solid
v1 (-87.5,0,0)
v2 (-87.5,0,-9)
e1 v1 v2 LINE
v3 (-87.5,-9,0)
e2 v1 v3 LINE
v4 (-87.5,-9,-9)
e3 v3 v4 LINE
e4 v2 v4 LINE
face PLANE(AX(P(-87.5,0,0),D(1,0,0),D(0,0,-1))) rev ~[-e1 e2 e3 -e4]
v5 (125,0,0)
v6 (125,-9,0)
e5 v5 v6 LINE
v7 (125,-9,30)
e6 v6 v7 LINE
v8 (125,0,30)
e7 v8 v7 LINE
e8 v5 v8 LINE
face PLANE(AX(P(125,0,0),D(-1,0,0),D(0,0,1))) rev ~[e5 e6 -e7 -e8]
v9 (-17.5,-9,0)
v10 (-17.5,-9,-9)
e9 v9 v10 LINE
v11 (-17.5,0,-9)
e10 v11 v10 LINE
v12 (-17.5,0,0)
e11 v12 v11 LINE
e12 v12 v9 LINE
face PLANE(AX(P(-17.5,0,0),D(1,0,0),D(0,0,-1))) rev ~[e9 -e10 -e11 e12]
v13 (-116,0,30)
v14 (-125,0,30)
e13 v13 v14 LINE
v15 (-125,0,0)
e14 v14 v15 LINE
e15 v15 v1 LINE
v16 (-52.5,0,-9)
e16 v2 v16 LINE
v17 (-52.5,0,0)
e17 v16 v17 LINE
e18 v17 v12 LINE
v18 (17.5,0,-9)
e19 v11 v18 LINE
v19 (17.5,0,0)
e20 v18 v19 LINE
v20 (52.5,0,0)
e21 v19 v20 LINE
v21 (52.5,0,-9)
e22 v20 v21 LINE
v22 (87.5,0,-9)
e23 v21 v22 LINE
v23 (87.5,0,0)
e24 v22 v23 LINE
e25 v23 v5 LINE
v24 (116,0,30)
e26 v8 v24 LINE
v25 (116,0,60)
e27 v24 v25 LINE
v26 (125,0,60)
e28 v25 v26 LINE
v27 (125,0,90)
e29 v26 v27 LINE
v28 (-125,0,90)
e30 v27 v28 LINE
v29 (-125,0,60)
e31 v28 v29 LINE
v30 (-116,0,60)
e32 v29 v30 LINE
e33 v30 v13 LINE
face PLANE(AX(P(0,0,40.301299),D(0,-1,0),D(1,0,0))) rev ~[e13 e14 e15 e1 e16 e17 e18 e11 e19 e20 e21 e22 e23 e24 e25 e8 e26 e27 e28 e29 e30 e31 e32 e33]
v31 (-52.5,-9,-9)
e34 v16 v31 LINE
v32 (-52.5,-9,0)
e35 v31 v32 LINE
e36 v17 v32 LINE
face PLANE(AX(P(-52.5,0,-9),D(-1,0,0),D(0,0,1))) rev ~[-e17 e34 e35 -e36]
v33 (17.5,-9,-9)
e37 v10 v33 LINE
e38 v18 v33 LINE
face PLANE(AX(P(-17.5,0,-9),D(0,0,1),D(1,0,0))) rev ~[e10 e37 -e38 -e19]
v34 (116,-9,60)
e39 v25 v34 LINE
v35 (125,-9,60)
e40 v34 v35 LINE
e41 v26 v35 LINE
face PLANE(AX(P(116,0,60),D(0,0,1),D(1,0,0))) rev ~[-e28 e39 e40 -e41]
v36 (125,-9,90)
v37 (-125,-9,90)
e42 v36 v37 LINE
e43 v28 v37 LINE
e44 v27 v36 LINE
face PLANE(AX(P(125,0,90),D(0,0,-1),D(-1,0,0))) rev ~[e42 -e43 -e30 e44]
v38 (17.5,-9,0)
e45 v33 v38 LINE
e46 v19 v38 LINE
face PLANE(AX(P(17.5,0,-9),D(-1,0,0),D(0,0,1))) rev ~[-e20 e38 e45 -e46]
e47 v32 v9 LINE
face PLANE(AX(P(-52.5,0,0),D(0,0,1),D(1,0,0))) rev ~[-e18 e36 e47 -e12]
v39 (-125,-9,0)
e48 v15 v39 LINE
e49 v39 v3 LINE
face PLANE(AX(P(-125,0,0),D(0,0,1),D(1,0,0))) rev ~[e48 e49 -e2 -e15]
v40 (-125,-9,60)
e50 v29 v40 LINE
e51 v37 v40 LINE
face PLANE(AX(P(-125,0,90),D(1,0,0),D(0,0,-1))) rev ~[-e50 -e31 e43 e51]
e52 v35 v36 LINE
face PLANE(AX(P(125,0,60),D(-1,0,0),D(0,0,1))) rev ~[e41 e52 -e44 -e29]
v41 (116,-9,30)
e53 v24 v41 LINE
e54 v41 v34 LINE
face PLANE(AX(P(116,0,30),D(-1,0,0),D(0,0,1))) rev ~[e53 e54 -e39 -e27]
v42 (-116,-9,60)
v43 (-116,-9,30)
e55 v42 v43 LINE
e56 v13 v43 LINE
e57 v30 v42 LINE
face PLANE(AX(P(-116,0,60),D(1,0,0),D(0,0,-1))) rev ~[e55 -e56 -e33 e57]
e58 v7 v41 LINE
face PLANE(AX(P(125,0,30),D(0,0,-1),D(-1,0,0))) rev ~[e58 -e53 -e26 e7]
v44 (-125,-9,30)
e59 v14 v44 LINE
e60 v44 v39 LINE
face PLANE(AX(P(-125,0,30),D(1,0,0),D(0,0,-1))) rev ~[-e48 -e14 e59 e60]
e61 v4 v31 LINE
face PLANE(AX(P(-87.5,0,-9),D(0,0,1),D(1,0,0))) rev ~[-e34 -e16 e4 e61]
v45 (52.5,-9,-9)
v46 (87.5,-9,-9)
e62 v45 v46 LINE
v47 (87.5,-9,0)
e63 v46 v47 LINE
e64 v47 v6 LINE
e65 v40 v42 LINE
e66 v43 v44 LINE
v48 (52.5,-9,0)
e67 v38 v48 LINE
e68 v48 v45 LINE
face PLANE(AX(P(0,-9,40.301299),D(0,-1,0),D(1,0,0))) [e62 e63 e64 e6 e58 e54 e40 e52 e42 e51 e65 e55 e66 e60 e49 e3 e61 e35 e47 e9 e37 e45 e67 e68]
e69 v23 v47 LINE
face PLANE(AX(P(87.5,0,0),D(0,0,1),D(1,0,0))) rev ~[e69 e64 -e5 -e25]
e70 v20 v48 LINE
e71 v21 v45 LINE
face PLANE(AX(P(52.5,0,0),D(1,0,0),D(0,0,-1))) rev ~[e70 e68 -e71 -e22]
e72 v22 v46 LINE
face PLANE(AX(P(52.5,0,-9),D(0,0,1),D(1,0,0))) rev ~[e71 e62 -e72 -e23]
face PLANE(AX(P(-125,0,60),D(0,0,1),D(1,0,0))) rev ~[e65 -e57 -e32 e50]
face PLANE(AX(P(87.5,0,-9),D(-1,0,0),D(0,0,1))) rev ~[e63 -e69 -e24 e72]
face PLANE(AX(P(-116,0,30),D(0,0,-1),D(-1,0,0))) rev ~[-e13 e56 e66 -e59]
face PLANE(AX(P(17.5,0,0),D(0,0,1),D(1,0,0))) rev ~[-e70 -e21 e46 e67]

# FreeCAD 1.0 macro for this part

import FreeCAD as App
import Part
import Sketcher
from FreeCAD import Vector
Q = App.Units.Quantity

doc = App.newDocument("Part")
body = doc.addObject("PartDesign::Body", "Body")

# Sketch on XZ plane
sketch1 = body.newObject("Sketcher::SketchObject", "Sketch")
sketch1.AttachmentSupport = (doc.getObject("XZ_Plane"), [""])
sketch1.MapMode = "FlatFace"
sketch1.addGeometry(Part.LineSegment(Vector(-125, 90, 0), Vector(-125, 60, 0)), False)
sketch1.addGeometry(Part.LineSegment(Vector(-125, 60, 0), Vector(-116, 60, 0)), False)
sketch1.addGeometry(Part.LineSegment(Vector(-116, 60, 0), Vector(-116, 30, 0)), False)
sketch1.addGeometry(Part.LineSegment(Vector(-116, 30, 0), Vector(-125, 30, 0)), False)
sketch1.addGeometry(Part.LineSegment(Vector(-125, 30, 0), Vector(-125, 0, 0)), False)
sketch1.addGeometry(Part.LineSegment(Vector(-125, 0, 0), Vector(-87.5, 0, 0)), False)
sketch1.addGeometry(Part.LineSegment(Vector(-87.5, 0, 0), Vector(-87.5, -9, 0)), False)
sketch1.addGeometry(Part.LineSegment(Vector(-87.5, -9, 0), Vector(-52.5, -9, 0)), False)
sketch1.addGeometry(Part.LineSegment(Vector(-52.5, -9, 0), Vector(-52.5, 0, 0)), False)
sketch1.addGeometry(Part.LineSegment(Vector(-52.5, 0, 0), Vector(-17.5, 0, 0)), False)
sketch1.addGeometry(Part.LineSegment(Vector(-17.5, 0, 0), Vector(-17.5, -9, 0)), False)
sketch1.addGeometry(Part.LineSegment(Vector(-17.5, -9, 0), Vector(17.5, -9, 0)), False)
sketch1.addGeometry(Part.LineSegment(Vector(17.5, -9, 0), Vector(17.5, 0, 0)), False)
sketch1.addGeometry(Part.LineSegment(Vector(17.5, 0, 0), Vector(52.5, 0, 0)), False)
sketch1.addGeometry(Part.LineSegment(Vector(52.5, 0, 0), Vector(52.5, -9, 0)), False)
sketch1.addGeometry(Part.LineSegment(Vector(52.5, -9, 0), Vector(87.5, -9, 0)), False)
sketch1.addGeometry(Part.LineSegment(Vector(87.5, -9, 0), Vector(87.5, 0, 0)), False)
sketch1.addGeometry(Part.LineSegment(Vector(87.5, 0, 0), Vector(125, 0, 0)), False)
sketch1.addGeometry(Part.LineSegment(Vector(125, 0, 0), Vector(125, 30, 0)), False)
sketch1.addGeometry(Part.LineSegment(Vector(125, 30, 0), Vector(116, 30, 0)), False)
sketch1.addGeometry(Part.LineSegment(Vector(116, 30, 0), Vector(116, 60, 0)), False)
sketch1.addGeometry(Part.LineSegment(Vector(116, 60, 0), Vector(125, 60, 0)), False)
sketch1.addGeometry(Part.LineSegment(Vector(125, 60, 0), Vector(125, 90, 0)), False)
sketch1.addGeometry(Part.LineSegment(Vector(125, 90, 0), Vector(-125, 90, 0)), False)
sketch1.addConstraint(Sketcher.Constraint("Coincident", 0, 2, 1, 1))
sketch1.addConstraint(Sketcher.Constraint("Coincident", 1, 2, 2, 1))
sketch1.addConstraint(Sketcher.Constraint("Coincident", 2, 2, 3, 1))
sketch1.addConstraint(Sketcher.Constraint("Coincident", 3, 2, 4, 1))
sketch1.addConstraint(Sketcher.Constraint("Coincident", 4, 2, 5, 1))
sketch1.addConstraint(Sketcher.Constraint("Coincident", 5, 2, 6, 1))
sketch1.addConstraint(Sketcher.Constraint("Coincident", 6, 2, 7, 1))
sketch1.addConstraint(Sketcher.Constraint("Coincident", 7, 2, 8, 1))
sketch1.addConstraint(Sketcher.Constraint("Coincident", 8, 2, 9, 1))
sketch1.addConstraint(Sketcher.Constraint("Coincident", 9, 2, 10, 1))
sketch1.addConstraint(Sketcher.Constraint("Coincident", 10, 2, 11, 1))
sketch1.addConstraint(Sketcher.Constraint("Coincident", 11, 2, 12, 1))
sketch1.addConstraint(Sketcher.Constraint("Coincident", 12, 2, 13, 1))
sketch1.addConstraint(Sketcher.Constraint("Coincident", 13, 2, 14, 1))
sketch1.addConstraint(Sketcher.Constraint("Coincident", 14, 2, 15, 1))
sketch1.addConstraint(Sketcher.Constraint("Coincident", 15, 2, 16, 1))
sketch1.addConstraint(Sketcher.Constraint("Coincident", 16, 2, 17, 1))
sketch1.addConstraint(Sketcher.Constraint("Coincident", 17, 2, 18, 1))
sketch1.addConstraint(Sketcher.Constraint("Coincident", 18, 2, 19, 1))
sketch1.addConstraint(Sketcher.Constraint("Coincident", 19, 2, 20, 1))
sketch1.addConstraint(Sketcher.Constraint("Coincident", 20, 2, 21, 1))
sketch1.addConstraint(Sketcher.Constraint("Coincident", 21, 2, 22, 1))
sketch1.addConstraint(Sketcher.Constraint("Coincident", 22, 2, 23, 1))
sketch1.addConstraint(Sketcher.Constraint("Coincident", 23, 2, 0, 1))
sketch1.addConstraint(Sketcher.Constraint("Vertical", 0))
sketch1.addConstraint(Sketcher.Constraint("Horizontal", 1))
sketch1.addConstraint(Sketcher.Constraint("Vertical", 2))
sketch1.addConstraint(Sketcher.Constraint("Horizontal", 3))
sketch1.addConstraint(Sketcher.Constraint("Vertical", 4))
sketch1.addConstraint(Sketcher.Constraint("Horizontal", 5))
sketch1.addConstraint(Sketcher.Constraint("Vertical", 6))
sketch1.addConstraint(Sketcher.Constraint("Horizontal", 7))
sketch1.addConstraint(Sketcher.Constraint("Vertical", 8))
sketch1.addConstraint(Sketcher.Constraint("Horizontal", 9))
sketch1.addConstraint(Sketcher.Constraint("Vertical", 10))
sketch1.addConstraint(Sketcher.Constraint("Horizontal", 11))
sketch1.addConstraint(Sketcher.Constraint("Vertical", 12))
sketch1.addConstraint(Sketcher.Constraint("Horizontal", 13))
sketch1.addConstraint(Sketcher.Constraint("Vertical", 14))
sketch1.addConstraint(Sketcher.Constraint("Horizontal", 15))
sketch1.addConstraint(Sketcher.Constraint("Vertical", 16))
sketch1.addConstraint(Sketcher.Constraint("Horizontal", 17))
sketch1.addConstraint(Sketcher.Constraint("Vertical", 18))
sketch1.addConstraint(Sketcher.Constraint("Horizontal", 19))
sketch1.addConstraint(Sketcher.Constraint("Vertical", 20))
sketch1.addConstraint(Sketcher.Constraint("Horizontal", 21))
sketch1.addConstraint(Sketcher.Constraint("Vertical", 22))
sketch1.addConstraint(Sketcher.Constraint("Horizontal", 23))
sketch1.addConstraint(Sketcher.Constraint("Symmetric", 9, 2, 12, 2, -1, 1))
sketch1.addConstraint(Sketcher.Constraint("Symmetric", 5, 2, 16, 2, -1, 1))
sketch1.addConstraint(Sketcher.Constraint("Symmetric", 8, 2, 13, 2, -2))
sketch1.addConstraint(Sketcher.Constraint("Symmetric", 4, 2, 17, 2, -2))
sketch1.addConstraint(Sketcher.Constraint("Symmetric", 2, 2, 19, 2, -2))
sketch1.addConstraint(Sketcher.Constraint("Symmetric", 0, 2, 21, 2, -2))
sketch1.addConstraint(Sketcher.Constraint("Horizontal", 7, 2, 10, 2))
sketch1.addConstraint(Sketcher.Constraint("Horizontal", 11, 2, 14, 2))
sketch1.addConstraint(Sketcher.Constraint("Vertical", 0, 2, 3, 2))
sketch1.addConstraint(Sketcher.Constraint("Equal", 7, 9))
sketch1.addConstraint(Sketcher.Constraint("Equal", 9, 11))
sketch1.addConstraint(Sketcher.Constraint("Equal", 0, 2))
sketch1.addConstraint(Sketcher.Constraint("Equal", 2, 4))
sketch1.addConstraint(Sketcher.Constraint("Equal", 21, 6))
sketch1.addConstraint(Sketcher.Constraint("DistanceX", 1, 1, 1, 2, Q("9 mm")))
sketch1.addConstraint(Sketcher.Constraint("DistanceX", 7, 1, 7, 2, Q("35 mm")))
sketch1.addConstraint(Sketcher.Constraint("DistanceX", 23, 2, 23, 1, Q("250 mm")))
sketch1.addConstraint(Sketcher.Constraint("DistanceY", 0, 2, 0, 1, Q("30 mm")))
pad1 = body.newObject("PartDesign::Pad", "Pad")
pad1.Profile = sketch1
pad1.Length = 9

doc.recompute()
